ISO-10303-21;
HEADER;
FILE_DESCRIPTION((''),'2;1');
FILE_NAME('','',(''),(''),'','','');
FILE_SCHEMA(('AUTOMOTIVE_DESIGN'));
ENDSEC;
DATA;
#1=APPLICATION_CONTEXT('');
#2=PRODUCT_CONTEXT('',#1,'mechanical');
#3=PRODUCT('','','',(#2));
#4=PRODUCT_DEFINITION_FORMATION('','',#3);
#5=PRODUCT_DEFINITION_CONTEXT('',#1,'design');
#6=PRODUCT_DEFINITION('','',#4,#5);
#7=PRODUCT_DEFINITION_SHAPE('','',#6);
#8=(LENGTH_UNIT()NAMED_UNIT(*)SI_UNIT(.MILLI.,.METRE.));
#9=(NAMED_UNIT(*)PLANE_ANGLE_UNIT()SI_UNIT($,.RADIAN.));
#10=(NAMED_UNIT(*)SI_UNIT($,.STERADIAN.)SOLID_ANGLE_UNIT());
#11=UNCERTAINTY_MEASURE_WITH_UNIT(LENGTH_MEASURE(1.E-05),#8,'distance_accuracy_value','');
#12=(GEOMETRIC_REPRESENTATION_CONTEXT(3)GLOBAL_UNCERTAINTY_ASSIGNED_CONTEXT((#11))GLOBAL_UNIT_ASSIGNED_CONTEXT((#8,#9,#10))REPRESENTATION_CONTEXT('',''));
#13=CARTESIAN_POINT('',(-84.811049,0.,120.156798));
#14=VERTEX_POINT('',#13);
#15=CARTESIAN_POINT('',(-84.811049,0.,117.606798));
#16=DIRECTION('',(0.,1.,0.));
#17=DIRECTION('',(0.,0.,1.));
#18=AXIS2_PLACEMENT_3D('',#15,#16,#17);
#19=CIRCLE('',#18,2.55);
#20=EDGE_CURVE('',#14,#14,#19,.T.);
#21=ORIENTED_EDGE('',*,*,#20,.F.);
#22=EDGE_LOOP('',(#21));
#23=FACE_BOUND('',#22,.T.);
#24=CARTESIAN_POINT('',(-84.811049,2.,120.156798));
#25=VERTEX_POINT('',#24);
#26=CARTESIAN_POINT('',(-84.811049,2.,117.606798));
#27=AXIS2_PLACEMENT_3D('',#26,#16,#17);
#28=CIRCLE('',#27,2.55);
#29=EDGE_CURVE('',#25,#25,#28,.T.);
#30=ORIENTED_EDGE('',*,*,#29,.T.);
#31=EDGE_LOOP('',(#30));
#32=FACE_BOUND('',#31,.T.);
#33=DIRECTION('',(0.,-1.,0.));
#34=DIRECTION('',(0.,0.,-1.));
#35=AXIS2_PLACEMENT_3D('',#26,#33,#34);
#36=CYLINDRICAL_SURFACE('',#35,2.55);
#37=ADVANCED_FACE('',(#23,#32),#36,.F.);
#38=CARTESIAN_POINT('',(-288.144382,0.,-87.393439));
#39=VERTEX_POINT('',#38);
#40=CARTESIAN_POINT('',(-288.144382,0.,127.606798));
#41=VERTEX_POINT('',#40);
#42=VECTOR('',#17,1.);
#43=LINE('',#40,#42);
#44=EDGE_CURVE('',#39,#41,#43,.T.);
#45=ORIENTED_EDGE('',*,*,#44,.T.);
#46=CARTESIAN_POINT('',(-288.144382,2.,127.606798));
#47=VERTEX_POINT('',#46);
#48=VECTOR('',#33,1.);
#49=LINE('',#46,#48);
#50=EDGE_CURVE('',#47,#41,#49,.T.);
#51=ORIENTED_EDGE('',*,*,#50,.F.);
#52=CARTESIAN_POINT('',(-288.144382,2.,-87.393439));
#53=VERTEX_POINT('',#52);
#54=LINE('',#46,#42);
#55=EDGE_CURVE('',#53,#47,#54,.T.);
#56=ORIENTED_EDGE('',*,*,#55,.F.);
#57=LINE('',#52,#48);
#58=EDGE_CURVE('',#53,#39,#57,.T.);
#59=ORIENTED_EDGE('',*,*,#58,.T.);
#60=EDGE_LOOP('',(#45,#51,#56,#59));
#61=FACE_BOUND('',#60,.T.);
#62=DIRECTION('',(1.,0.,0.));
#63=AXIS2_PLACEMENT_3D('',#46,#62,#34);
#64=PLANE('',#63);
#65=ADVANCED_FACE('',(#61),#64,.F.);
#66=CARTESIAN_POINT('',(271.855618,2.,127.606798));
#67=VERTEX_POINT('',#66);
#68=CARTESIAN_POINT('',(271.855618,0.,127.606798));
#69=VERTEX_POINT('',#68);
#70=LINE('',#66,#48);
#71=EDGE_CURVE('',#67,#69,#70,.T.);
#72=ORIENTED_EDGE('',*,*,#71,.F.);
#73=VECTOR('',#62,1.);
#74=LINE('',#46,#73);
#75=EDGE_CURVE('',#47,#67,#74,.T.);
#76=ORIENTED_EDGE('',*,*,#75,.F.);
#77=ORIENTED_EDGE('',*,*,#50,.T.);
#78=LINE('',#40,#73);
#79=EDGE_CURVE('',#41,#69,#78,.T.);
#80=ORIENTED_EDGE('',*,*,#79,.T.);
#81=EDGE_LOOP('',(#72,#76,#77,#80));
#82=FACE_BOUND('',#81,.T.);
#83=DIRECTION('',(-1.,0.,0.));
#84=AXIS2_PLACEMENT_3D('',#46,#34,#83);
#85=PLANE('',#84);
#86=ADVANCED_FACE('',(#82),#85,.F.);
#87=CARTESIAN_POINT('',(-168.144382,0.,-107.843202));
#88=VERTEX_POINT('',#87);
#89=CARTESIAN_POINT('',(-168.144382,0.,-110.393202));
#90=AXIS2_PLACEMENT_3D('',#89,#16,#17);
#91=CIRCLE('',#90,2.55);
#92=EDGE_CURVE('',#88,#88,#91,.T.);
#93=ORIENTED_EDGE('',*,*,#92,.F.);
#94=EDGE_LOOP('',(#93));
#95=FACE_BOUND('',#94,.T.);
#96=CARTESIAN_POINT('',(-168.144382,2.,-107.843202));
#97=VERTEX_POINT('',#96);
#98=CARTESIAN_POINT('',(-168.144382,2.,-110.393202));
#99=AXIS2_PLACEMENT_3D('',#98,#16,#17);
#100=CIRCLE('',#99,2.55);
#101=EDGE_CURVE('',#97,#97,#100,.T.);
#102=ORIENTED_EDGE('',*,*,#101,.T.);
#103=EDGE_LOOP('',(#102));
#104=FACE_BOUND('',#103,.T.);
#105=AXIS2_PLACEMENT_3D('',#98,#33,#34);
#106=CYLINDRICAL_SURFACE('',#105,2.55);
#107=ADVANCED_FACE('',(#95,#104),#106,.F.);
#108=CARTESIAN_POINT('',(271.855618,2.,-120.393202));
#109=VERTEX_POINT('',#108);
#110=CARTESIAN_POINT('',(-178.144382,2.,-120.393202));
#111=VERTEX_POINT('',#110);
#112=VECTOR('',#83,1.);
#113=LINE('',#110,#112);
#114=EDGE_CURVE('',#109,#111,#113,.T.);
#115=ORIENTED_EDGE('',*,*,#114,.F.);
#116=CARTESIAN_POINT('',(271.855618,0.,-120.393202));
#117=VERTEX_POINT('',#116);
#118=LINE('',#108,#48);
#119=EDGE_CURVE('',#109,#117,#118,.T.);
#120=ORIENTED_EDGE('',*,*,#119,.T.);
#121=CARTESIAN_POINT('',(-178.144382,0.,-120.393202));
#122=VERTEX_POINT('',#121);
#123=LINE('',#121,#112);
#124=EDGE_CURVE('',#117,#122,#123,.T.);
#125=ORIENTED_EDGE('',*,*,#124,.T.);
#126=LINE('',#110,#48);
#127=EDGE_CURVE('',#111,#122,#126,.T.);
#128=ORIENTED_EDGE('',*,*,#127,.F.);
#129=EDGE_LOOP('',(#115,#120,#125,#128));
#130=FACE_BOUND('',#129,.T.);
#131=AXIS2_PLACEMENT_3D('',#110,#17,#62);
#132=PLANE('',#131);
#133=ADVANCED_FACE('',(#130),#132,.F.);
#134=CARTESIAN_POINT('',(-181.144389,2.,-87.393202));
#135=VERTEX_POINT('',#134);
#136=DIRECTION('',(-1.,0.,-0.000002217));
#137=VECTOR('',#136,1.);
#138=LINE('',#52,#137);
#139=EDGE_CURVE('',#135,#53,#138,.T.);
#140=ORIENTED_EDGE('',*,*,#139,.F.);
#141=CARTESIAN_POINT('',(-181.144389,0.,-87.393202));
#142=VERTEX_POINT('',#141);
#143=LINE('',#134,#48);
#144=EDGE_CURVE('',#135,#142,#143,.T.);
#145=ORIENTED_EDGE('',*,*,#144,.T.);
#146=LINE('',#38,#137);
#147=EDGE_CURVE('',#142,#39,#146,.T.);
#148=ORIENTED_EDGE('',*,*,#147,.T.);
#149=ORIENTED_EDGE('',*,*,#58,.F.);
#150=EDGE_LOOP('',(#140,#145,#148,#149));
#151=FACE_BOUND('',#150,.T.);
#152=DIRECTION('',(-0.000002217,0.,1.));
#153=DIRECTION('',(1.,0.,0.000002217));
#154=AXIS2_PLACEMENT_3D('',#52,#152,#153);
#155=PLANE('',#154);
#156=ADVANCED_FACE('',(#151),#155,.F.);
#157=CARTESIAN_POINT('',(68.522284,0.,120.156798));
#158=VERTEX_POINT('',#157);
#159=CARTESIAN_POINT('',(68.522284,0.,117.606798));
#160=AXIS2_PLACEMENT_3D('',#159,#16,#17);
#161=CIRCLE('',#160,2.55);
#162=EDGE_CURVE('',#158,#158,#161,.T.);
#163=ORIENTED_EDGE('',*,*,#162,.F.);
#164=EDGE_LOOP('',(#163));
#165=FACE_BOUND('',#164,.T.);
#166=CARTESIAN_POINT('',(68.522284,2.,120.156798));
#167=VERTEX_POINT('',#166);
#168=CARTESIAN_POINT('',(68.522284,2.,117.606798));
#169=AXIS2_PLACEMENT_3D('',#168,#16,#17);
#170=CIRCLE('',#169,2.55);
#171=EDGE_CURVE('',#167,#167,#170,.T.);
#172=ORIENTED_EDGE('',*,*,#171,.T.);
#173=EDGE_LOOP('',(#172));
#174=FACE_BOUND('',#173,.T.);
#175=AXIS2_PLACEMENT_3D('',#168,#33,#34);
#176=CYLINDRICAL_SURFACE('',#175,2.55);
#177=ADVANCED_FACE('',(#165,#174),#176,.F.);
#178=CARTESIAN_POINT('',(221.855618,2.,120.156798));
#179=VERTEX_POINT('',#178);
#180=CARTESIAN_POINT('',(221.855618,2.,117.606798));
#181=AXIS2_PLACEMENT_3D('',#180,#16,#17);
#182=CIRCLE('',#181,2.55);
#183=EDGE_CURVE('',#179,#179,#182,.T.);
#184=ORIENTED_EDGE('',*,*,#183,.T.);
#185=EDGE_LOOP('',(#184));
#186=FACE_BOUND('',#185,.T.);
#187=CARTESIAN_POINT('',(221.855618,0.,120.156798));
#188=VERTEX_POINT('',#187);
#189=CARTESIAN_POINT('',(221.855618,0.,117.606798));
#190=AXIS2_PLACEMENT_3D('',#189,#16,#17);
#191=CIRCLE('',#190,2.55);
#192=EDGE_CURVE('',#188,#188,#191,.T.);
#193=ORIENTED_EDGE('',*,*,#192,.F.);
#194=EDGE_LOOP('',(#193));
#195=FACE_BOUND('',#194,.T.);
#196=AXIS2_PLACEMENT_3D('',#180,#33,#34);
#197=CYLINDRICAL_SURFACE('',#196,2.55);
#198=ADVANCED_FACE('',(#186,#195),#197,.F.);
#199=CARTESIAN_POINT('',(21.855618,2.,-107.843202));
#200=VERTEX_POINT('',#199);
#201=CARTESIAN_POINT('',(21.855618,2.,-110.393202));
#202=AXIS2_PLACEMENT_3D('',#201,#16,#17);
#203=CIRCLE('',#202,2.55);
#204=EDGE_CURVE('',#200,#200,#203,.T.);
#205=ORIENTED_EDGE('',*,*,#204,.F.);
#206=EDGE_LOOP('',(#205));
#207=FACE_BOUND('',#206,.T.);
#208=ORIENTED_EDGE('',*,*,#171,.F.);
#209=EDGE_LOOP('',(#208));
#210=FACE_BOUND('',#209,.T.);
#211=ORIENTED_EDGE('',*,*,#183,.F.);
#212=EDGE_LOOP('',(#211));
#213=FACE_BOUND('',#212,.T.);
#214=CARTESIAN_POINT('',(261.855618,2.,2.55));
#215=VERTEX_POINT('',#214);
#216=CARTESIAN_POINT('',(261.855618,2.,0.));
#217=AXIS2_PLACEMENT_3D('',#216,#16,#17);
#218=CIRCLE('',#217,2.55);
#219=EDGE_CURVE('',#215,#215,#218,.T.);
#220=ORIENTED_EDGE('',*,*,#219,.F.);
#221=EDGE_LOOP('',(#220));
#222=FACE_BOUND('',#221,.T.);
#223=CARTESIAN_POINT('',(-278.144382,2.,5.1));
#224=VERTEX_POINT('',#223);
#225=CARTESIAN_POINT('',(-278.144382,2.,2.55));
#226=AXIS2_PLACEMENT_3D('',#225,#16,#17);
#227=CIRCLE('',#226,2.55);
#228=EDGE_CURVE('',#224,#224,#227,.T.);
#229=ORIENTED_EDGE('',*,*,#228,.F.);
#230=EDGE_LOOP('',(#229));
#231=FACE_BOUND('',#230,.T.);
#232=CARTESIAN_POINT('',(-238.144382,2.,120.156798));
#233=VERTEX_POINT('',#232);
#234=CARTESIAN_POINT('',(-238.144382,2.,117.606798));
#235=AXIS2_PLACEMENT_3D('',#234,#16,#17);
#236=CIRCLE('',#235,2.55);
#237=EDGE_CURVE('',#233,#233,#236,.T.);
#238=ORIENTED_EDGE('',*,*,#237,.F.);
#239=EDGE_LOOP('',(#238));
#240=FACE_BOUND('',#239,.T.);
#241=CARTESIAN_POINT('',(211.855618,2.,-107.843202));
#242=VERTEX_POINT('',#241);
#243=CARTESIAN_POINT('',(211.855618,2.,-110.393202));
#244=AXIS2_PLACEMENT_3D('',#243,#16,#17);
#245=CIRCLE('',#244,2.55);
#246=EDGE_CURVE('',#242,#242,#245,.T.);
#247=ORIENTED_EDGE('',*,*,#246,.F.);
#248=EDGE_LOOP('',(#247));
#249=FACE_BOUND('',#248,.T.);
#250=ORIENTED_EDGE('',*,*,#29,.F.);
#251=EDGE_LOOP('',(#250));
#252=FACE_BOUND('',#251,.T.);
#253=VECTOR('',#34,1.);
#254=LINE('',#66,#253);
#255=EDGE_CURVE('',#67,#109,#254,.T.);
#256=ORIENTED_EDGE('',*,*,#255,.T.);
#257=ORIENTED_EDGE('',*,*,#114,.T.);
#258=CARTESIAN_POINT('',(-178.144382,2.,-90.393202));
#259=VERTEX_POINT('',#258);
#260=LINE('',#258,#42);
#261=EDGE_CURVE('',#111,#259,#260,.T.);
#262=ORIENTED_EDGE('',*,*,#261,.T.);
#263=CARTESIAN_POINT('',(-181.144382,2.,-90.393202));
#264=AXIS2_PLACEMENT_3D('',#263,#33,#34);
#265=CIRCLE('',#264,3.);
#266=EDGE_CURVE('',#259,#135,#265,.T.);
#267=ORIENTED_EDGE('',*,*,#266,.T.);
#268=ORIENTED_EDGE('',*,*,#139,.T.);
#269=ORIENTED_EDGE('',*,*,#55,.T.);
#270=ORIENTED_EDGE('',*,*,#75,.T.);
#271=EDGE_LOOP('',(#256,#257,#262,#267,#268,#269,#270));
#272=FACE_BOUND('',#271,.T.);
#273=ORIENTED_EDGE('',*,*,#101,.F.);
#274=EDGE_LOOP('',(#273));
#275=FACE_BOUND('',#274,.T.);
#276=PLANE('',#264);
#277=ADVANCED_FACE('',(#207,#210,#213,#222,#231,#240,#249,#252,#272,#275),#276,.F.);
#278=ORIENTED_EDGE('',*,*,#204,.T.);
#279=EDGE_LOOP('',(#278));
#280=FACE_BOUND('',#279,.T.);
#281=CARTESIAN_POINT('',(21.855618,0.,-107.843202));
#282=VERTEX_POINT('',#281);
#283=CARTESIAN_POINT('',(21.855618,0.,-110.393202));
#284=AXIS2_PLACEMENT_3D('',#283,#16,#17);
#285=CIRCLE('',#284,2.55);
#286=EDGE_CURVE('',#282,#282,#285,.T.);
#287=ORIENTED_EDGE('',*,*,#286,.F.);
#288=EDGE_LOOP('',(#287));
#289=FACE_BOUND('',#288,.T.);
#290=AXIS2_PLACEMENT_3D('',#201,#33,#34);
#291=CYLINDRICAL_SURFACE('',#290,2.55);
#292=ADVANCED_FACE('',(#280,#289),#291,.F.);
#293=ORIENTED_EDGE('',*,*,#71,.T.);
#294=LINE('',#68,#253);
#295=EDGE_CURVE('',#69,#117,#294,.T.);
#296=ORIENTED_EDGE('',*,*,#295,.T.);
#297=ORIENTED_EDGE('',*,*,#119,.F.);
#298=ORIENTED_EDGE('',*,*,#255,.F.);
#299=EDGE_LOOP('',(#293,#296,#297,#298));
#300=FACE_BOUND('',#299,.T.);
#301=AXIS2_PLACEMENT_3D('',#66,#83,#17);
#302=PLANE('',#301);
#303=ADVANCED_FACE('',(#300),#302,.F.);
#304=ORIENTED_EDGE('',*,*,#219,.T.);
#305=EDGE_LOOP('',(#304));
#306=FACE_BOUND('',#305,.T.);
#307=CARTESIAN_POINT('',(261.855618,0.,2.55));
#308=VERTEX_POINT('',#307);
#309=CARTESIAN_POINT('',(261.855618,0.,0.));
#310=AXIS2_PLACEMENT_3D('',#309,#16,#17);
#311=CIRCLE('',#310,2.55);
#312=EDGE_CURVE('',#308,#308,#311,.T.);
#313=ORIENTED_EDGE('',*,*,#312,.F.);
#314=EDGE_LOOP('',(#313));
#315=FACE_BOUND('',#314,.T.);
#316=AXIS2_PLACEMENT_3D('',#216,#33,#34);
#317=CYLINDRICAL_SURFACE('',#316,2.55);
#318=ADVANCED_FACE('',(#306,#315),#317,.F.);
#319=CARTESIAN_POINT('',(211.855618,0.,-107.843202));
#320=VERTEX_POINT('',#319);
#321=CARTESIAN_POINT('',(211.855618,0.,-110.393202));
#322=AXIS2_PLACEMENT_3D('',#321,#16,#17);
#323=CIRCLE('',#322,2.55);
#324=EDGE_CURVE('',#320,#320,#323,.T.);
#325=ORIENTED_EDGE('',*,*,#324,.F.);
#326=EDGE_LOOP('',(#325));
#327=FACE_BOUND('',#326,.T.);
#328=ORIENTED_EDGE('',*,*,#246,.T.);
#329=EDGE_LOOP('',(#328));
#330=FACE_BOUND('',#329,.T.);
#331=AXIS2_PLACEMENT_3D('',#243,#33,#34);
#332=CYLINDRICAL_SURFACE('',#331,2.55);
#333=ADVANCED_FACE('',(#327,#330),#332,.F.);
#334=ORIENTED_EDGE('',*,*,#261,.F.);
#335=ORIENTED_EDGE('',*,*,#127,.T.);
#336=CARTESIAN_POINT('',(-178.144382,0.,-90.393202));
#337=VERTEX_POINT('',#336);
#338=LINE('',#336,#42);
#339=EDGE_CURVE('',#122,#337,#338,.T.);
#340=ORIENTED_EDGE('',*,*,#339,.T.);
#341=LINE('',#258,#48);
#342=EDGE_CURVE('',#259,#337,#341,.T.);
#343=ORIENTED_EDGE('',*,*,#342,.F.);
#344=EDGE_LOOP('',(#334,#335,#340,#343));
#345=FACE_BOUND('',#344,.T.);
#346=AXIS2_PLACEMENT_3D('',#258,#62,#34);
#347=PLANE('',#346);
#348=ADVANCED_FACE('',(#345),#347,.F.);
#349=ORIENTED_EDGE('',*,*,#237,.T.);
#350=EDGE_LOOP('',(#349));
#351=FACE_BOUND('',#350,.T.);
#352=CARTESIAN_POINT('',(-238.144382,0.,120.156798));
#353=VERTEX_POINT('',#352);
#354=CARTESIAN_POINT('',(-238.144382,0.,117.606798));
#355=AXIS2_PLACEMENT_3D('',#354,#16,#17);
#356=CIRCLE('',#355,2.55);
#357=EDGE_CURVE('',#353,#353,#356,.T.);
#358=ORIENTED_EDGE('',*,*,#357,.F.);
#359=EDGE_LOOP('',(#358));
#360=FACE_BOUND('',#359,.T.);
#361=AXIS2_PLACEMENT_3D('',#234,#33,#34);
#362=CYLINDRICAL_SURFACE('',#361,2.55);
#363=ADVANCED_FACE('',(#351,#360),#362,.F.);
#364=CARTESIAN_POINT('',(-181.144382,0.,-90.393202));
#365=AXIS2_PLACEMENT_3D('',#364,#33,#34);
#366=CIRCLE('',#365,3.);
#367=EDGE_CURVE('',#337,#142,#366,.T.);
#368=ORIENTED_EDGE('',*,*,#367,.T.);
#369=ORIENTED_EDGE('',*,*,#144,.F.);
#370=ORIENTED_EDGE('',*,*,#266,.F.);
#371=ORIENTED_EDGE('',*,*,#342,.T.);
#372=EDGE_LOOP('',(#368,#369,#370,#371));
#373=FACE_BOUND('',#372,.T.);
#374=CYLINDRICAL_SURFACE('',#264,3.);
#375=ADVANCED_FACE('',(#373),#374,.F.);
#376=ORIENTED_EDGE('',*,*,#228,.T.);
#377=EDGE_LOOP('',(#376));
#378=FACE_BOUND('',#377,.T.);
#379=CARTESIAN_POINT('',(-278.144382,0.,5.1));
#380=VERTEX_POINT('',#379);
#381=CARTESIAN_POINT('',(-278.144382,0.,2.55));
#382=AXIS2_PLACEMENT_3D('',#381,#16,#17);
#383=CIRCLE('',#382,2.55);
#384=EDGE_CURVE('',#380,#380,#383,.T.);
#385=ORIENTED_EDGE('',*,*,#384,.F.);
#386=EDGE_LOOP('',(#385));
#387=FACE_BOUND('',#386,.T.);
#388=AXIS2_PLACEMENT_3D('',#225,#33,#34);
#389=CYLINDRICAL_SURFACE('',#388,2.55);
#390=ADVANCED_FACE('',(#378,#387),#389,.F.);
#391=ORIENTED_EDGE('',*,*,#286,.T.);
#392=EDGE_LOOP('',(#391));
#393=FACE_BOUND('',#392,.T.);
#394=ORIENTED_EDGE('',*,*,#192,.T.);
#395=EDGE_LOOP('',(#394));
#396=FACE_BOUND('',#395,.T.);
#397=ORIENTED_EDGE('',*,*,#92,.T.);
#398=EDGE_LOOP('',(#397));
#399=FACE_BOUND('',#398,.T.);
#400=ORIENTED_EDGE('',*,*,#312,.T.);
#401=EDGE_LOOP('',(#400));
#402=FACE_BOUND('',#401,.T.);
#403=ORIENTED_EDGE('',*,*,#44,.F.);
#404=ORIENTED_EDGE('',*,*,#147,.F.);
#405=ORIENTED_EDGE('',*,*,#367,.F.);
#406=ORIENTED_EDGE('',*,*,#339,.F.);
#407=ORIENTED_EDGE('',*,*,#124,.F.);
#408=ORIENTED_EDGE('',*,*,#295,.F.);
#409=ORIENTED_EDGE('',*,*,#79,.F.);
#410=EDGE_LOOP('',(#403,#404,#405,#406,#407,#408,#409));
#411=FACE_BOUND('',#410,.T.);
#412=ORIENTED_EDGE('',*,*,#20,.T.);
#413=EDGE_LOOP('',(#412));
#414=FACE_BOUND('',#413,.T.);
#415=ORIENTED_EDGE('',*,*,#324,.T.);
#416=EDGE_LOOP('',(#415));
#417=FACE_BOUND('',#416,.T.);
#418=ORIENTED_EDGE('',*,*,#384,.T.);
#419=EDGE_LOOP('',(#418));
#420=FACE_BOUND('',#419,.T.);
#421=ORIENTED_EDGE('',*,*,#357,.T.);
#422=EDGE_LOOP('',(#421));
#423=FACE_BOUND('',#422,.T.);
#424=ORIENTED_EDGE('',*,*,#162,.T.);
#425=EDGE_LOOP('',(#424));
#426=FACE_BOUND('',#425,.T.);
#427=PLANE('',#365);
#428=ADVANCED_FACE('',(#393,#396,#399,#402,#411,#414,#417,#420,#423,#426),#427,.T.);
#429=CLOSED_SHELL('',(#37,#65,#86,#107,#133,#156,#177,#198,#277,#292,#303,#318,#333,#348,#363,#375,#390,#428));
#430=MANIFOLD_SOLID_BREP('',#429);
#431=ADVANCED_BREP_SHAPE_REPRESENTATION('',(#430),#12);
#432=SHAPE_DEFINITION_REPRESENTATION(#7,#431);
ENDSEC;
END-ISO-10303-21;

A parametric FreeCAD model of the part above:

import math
import FreeCAD as App
import Part
import Sketcher

doc = App.newDocument("Part")
body = doc.addObject("PartDesign::Body", "Body")

sketch1 = body.newObject("Sketcher::SketchObject", "Sketch")
sketch1.AttachmentSupport = (doc.getObject("XZ_Plane"), [""])
sketch1.MapMode = "FlatFace"
sketch1.addGeometry(Part.LineSegment(App.Vector(-181.1, -87.4, 0), App.Vector(-288.1, -87.4, 0)), False)
sketch1.addGeometry(Part.LineSegment(App.Vector(-288.1, -87.4, 0), App.Vector(-288.1, 127.6, 0)), False)
sketch1.addGeometry(Part.LineSegment(App.Vector(-288.1, 127.6, 0), App.Vector(271.9, 127.6, 0)), False)
sketch1.addGeometry(Part.LineSegment(App.Vector(271.9, 127.6, 0), App.Vector(271.9, -120.4, 0)), False)
sketch1.addGeometry(Part.LineSegment(App.Vector(271.9, -120.4, 0), App.Vector(-178.1, -120.4, 0)), False)
sketch1.addGeometry(Part.LineSegment(App.Vector(-178.1, -120.4, 0), App.Vector(-178.1, -90.4, 0)), False)
sketch1.addGeometry(Part.ArcOfCircle(Part.Circle(App.Vector(-181.1, -90.4, 0), App.Vector(0, 0, 1), 3), math.radians(0), math.radians(90)), False)
sketch1.addGeometry(Part.Circle(App.Vector(221.9, 117.6, 0), App.Vector(0, 0, 1), 2.5), False)
sketch1.addGeometry(Part.Circle(App.Vector(68.5, 117.6, 0), App.Vector(0, 0, 1), 2.5), False)
sketch1.addGeometry(Part.Circle(App.Vector(-84.8, 117.6, 0), App.Vector(0, 0, 1), 2.5), False)
sketch1.addGeometry(Part.Circle(App.Vector(-238.1, 117.6, 0), App.Vector(0, 0, 1), 2.5), False)
sketch1.addGeometry(Part.Circle(App.Vector(261.9, 0, 0), App.Vector(0, 0, 1), 2.5), False)
sketch1.addGeometry(Part.Circle(App.Vector(211.9, -110.4, 0), App.Vector(0, 0, 1), 2.5), False)
sketch1.addGeometry(Part.Circle(App.Vector(21.9, -110.4, 0), App.Vector(0, 0, 1), 2.5), False)
sketch1.addGeometry(Part.Circle(App.Vector(-278.1, 2.5, 0), App.Vector(0, 0, 1), 2.5), False)
sketch1.addGeometry(Part.Circle(App.Vector(-168.1, -110.4, 0), App.Vector(0, 0, 1), 2.5), False)
sketch1.addConstraint(Sketcher.Constraint("Coincident", 0, 2, 1, 1))
sketch1.addConstraint(Sketcher.Constraint("Coincident", 1, 2, 2, 1))
sketch1.addConstraint(Sketcher.Constraint("Coincident", 2, 2, 3, 1))
sketch1.addConstraint(Sketcher.Constraint("Coincident", 3, 2, 4, 1))
sketch1.addConstraint(Sketcher.Constraint("Coincident", 4, 2, 5, 1))
sketch1.addConstraint(Sketcher.Constraint("Tangent", 5, 2, 6, 1))
sketch1.addConstraint(Sketcher.Constraint("Tangent", 6, 2, 0, 1))
sketch1.addConstraint(Sketcher.Constraint("Vertical", 1))
sketch1.addConstraint(Sketcher.Constraint("Horizontal", 2))
sketch1.addConstraint(Sketcher.Constraint("Vertical", 3))
sketch1.addConstraint(Sketcher.Constraint("Horizontal", 4))
sketch1.addConstraint(Sketcher.Constraint("Vertical", 5))
sketch1.addConstraint(Sketcher.Constraint("Equal", 7, 8))
sketch1.addConstraint(Sketcher.Constraint("Equal", 8, 9))
sketch1.addConstraint(Sketcher.Constraint("Equal", 9, 10))
sketch1.addConstraint(Sketcher.Constraint("Equal", 10, 11))
sketch1.addConstraint(Sketcher.Constraint("Equal", 11, 12))
sketch1.addConstraint(Sketcher.Constraint("Equal", 12, 13))
sketch1.addConstraint(Sketcher.Constraint("Equal", 13, 14))
sketch1.addConstraint(Sketcher.Constraint("Equal", 14, 15))
sketch1.addConstraint(Sketcher.Constraint("PointOnObject", 11, 3, -1))
sketch1.addConstraint(Sketcher.Constraint("Horizontal", 7, 3, 8, 3))
sketch1.addConstraint(Sketcher.Constraint("Horizontal", 8, 3, 9, 3))
sketch1.addConstraint(Sketcher.Constraint("Horizontal", 9, 3, 10, 3))
sketch1.addConstraint(Sketcher.Constraint("Horizontal", 12, 3, 13, 3))
sketch1.addConstraint(Sketcher.Constraint("Horizontal", 13, 3, 15, 3))
sketch1.addConstraint(Sketcher.Constraint("Radius", 6, 3.0))
sketch1.addConstraint(Sketcher.Constraint("Diameter", 7, 5.1))
sketch1.addConstraint(Sketcher.Constraint("DistanceX", 2, 1, 2, 2, 560.0))
sketch1.addConstraint(Sketcher.Constraint("DistanceX", 4, 2, 4, 1, 450.0))
sketch1.addConstraint(Sketcher.Constraint("DistanceY", 3, 2, 3, 1, 248.0))
sketch1.addConstraint(Sketcher.Constraint("DistanceY", 5, 1, 5, 2, 30.0))
sketch1.addConstraint(Sketcher.Constraint("DistanceX", 6, 3, 7, 3, 403.0))
sketch1.addConstraint(Sketcher.Constraint("DistanceY", 6, 3, 7, 3, 208.0))
sketch1.addConstraint(Sketcher.Constraint("DistanceX", 10, 3, 6, 3, 57.0))
sketch1.addConstraint(Sketcher.Constraint("DistanceX", 7, 3, 11, 3, 40.0))
sketch1.addConstraint(Sketcher.Constraint("DistanceX", 12, 3, 11, 3, 50.0))
sketch1.addConstraint(Sketcher.Constraint("DistanceY", 12, 3, 7, 3, 228.0))
sketch1.addConstraint(Sketcher.Constraint("DistanceX", 13, 3, 12, 3, 190.0))
sketch1.addConstraint(Sketcher.Constraint("DistanceX", 14, 3, 10, 3, 40.0))
sketch1.addConstraint(Sketcher.Constraint("DistanceX", 6, 3, 15, 3, 13.0))
sketch1.addConstraint(Sketcher.Constraint("DistanceY", -1, 1, 14, 3, 2.55))
sketch1.addConstraint(Sketcher.Constraint("DistanceY", 1, 1, 1, 2, 215.000237))
sketch1.addConstraint(Sketcher.Constraint("DistanceX", 9, 3, -1, 1, 84.811049))
sketch1.addConstraint(Sketcher.Constraint("DistanceY", 0, 2, -1, 1, 87.393439))
sketch1.addConstraint(Sketcher.Constraint("DistanceX", 6, 2, -1, 1, 181.144389))
sketch1.addConstraint(Sketcher.Constraint("DistanceX", -1, 1, 8, 3, 68.522284))
pad1 = body.newObject("PartDesign::Pad", "Pad")
pad1.Profile = sketch1
pad1.Length = 2
pad1.Reversed = True

doc.recompute()
